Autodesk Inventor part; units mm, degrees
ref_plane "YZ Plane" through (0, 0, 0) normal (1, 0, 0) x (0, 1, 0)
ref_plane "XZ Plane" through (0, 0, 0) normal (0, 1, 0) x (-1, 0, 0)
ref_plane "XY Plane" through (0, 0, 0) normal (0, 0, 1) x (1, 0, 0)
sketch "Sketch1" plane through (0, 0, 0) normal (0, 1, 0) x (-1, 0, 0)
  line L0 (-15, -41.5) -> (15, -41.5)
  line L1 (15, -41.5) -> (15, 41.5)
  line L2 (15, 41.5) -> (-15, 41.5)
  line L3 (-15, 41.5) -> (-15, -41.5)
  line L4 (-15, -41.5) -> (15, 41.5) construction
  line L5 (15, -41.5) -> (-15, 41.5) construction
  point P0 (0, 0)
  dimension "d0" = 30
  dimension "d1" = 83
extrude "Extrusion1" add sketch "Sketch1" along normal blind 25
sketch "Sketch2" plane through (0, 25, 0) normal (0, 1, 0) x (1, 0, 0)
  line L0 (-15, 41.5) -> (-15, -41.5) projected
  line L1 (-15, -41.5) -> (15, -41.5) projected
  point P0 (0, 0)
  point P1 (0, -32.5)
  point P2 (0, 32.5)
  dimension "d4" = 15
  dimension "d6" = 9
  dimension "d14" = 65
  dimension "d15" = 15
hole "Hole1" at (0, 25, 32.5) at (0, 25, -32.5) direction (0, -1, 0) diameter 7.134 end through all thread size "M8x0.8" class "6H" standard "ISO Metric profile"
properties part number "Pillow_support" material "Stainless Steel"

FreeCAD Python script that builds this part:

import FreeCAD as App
import Part
import Sketcher
from FreeCAD import Vector
Q = App.Units.Quantity

doc = App.newDocument("Part")
body = doc.addObject("PartDesign::Body", "Body")

sketch1 = body.newObject("Sketcher::SketchObject", "Sketch")
sketch1.AttachmentSupport = (doc.getObject("XZ_Plane"), [""])
sketch1.MapMode = "FlatFace"
sketch1.addGeometry([
    Part.LineSegment(Vector(15, 42, 0), Vector(15, -42, 0)),
    Part.LineSegment(Vector(15, -42, 0), Vector(-15, -42, 0)),
    Part.LineSegment(Vector(-15, -42, 0), Vector(-15, 42, 0)),
    Part.LineSegment(Vector(-15, 42, 0), Vector(15, 42, 0)),
], False)
sketch1.addConstraint([
    Sketcher.Constraint("Coincident", 0, 2, 1, 1),
    Sketcher.Constraint("Coincident", 1, 2, 2, 1),
    Sketcher.Constraint("Coincident", 2, 2, 3, 1),
    Sketcher.Constraint("Coincident", 3, 2, 0, 1),
    Sketcher.Constraint("Vertical", 0),
    Sketcher.Constraint("Horizontal", 1),
    Sketcher.Constraint("Vertical", 2),
    Sketcher.Constraint("Horizontal", 3),
    Sketcher.Constraint("Symmetric", 0, 2, 2, 2, -1, 1),
    Sketcher.Constraint("DistanceX", 1, 2, 1, 1, Q("30 mm")),
    Sketcher.Constraint("DistanceY", 0, 2, 0, 1, Q("83 mm")),
])
pad1 = body.newObject("PartDesign::Pad", "Pad")
pad1.Profile = sketch1
pad1.Length = 25
pad1.Reversed = True

sketch2 = body.newObject("Sketcher::SketchObject", "Sketch001")
sketch2.AttachmentSupport = (doc.getObject("XZ_Plane"), [""])
sketch2.MapMode = "FlatFace"
sketch2.AttachmentOffset = App.Placement(Vector(0, 0, -25), App.Rotation())
sketch2.addGeometry([
    Part.Circle(Vector(0, 32.5, 0), Vector(0, 0, 1), 3.6),
    Part.Circle(Vector(0, -32.5, 0), Vector(0, 0, 1), 3.6),
], False)
sketch2.addConstraint([
    Sketcher.Constraint("Equal", 0, 1),
    Sketcher.Constraint("Symmetric", 0, 3, 1, 3, -1, 1),
    Sketcher.Constraint("PointOnObject", 0, 3, -2),
    Sketcher.Constraint("Diameter", 0, Q("7.134 mm")),
    Sketcher.Constraint("DistanceY", 1, 3, 0, 3, Q("65 mm")),
])
doc.recompute()
hole = body.newObject("PartDesign::Hole", "Hole")
hole.Profile = sketch2
hole.ThreadType = "None"
hole.Diameter = 7.134
hole.DepthType = "ThroughAll"
hole.Reversed = True

doc.recompute()
